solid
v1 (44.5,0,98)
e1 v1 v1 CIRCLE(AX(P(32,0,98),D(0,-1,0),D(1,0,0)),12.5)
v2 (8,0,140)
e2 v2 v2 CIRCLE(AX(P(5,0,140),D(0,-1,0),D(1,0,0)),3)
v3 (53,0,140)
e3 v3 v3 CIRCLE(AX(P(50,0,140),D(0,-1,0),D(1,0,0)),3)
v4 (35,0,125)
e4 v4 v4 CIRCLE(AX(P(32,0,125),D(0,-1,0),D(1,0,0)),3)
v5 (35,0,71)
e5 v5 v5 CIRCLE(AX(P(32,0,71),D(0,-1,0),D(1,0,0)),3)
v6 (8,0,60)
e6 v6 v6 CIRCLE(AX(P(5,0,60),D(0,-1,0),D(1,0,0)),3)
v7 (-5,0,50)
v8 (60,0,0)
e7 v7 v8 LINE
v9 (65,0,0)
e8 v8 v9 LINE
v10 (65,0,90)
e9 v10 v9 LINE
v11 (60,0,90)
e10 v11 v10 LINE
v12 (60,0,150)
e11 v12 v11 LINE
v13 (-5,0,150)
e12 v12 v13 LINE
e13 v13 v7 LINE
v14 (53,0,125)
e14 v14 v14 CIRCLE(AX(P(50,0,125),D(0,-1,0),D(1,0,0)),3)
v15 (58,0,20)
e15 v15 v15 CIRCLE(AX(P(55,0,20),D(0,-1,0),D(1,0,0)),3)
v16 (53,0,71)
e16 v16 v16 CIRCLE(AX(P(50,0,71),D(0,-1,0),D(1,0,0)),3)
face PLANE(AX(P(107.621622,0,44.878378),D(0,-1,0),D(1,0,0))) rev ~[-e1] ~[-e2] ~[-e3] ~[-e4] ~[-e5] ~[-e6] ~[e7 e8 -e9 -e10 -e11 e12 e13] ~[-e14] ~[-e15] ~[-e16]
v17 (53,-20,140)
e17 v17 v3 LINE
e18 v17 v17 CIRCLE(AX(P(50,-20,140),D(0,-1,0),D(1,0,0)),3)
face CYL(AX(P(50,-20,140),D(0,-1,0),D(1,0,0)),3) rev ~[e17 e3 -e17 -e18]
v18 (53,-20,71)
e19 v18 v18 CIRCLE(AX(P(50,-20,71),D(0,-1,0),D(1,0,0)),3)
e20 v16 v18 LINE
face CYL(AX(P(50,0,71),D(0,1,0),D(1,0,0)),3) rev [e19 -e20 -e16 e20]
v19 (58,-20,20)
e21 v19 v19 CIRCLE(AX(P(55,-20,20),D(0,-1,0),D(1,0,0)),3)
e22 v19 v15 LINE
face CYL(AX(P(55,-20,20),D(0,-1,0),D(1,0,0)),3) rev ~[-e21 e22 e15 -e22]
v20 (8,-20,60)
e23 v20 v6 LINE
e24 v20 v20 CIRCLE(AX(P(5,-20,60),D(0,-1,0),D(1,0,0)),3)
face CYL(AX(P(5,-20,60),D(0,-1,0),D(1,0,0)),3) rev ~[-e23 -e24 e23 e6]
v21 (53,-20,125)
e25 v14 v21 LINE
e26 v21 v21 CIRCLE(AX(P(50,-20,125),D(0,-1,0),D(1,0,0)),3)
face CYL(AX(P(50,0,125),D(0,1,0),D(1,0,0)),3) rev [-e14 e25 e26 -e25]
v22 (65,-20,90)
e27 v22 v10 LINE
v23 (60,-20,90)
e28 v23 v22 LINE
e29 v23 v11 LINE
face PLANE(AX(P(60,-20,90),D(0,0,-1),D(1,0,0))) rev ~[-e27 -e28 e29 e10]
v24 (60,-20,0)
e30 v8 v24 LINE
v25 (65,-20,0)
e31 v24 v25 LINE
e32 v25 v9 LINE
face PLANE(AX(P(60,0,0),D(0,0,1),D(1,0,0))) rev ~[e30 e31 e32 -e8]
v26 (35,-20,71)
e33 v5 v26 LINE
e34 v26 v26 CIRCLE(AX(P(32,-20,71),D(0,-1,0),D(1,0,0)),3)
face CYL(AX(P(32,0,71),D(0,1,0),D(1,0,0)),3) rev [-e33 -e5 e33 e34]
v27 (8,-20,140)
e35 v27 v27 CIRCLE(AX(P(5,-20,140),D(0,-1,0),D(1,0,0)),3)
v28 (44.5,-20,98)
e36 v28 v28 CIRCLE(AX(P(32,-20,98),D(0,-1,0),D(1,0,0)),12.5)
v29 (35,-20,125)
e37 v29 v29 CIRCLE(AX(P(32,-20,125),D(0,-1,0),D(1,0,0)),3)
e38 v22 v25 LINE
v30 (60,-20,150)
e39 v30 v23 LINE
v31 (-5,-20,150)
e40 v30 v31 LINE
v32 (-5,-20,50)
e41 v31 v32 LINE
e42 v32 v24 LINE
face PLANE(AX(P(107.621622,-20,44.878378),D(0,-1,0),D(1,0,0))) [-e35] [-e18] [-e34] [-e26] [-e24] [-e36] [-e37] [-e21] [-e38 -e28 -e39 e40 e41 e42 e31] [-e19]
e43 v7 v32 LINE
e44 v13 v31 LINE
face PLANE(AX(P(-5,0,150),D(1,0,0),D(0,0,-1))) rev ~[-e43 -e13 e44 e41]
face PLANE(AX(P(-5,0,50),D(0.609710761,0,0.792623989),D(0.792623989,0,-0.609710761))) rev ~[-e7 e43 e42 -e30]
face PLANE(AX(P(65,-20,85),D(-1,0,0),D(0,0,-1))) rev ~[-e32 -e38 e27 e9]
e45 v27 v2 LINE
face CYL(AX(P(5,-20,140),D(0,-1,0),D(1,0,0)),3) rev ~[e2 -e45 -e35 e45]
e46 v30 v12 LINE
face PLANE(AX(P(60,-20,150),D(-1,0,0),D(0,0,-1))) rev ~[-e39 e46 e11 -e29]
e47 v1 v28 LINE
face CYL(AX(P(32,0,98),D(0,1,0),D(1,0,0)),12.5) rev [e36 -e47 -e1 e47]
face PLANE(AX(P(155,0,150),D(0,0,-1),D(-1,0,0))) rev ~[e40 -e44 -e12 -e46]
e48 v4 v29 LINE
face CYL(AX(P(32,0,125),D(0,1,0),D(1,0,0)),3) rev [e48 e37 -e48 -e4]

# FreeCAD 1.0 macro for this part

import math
import FreeCAD as App
import Part
import Sketcher

V = App.Vector
Q = App.Units.Quantity


def add_polygon(sketch, points):
    """Adds a closed chain of lines whose ends are joined by coincident constraints."""
    first, n = sketch.GeometryCount, len(points)
    for a, b in zip(points, points[1:] + points[:1]):
        sketch.addGeometry(Part.LineSegment(App.Vector(*a, 0), App.Vector(*b, 0)), False)
    for i in range(n):
        sketch.addConstraint(Sketcher.Constraint("Coincident", first + i, 2, first + (i + 1) % n, 1))

doc = App.newDocument("Part")
params = doc.addObject("Spreadsheet::Sheet", "Params")
for row, (alias, value) in enumerate([
    ("sketch1_diameter", "6 mm"),
    ("sketch1_diameter2", "25 mm"),
    ("sketch1_width", "95 mm"),
    ("sketch1_width2", "160 mm"),
    ("sketch1_height", "150 mm"),
    ("pad1_length", "20 mm"),
    ("sketch2_diameter", "25 mm"),
    ("pocket1_length", "25 mm"),
    ("sketch3_radius", "5 mm"),
    ("sketch3_width", "90 mm"),
    ("pocket2_length", "25 mm"),
    ("sketch4_width", "22 mm"),
    ("sketch4_height", "19 mm"),
    ("pocket3_length", "25 mm"),
    ("sketch5_radius", "5 mm"),
    ("sketch5_width", "95 mm"),
    ("sketch5_width2", "6 mm"),
    ("sketch5_width3", "22 mm"),
    ("sketch5_height", "60 mm"),
    ("pocket4_length", "25 mm"),
    ("sketch6_diameter", "6 mm"),
    ("pocket5_length", "25 mm"),
], start=1):
    params.set(f"A{row}", alias)
    params.set(f"B{row}", "=" + value)
    params.setAlias(f"B{row}", alias)

body = doc.addObject("PartDesign::Body", "Body")

# Sketch on XZ plane
sketch1 = body.newObject("Sketcher::SketchObject", "Sketch")
sketch1.AttachmentSupport = (doc.getObject("XZ_Plane"), [""])
sketch1.MapMode = "FlatFace"
add_polygon(sketch1, [(60, 0), (155, 0), (155, 150), (-5, 150), (-5, 50)])  # lines 0-4
sketch1.addGeometry(Part.Circle(V(32, 71, 0), V(0, 0, 1), 3), False)  # 5
sketch1.addGeometry(Part.Circle(V(50, 71, 0), V(0, 0, 1), 3), False)  # 6
sketch1.addGeometry(Part.Circle(V(32, 98, 0), V(0, 0, 1), 12.5), False)  # 7
sketch1.addGeometry(Part.Circle(V(32, 125, 0), V(0, 0, 1), 3), False)  # 8
sketch1.addGeometry(Part.Circle(V(50, 125, 0), V(0, 0, 1), 3), False)  # 9
sketch1.addConstraint([
    Sketcher.Constraint("Horizontal", 0),
    Sketcher.Constraint("Vertical", 1),
    Sketcher.Constraint("Horizontal", 2),
    Sketcher.Constraint("Vertical", 3),
    Sketcher.Constraint("Equal", 5, 6),
    Sketcher.Constraint("Equal", 6, 8),
    Sketcher.Constraint("Equal", 8, 9),
    Sketcher.Constraint("PointOnObject", 0, 2, -1),
    Sketcher.Constraint("Horizontal", 5, 3, 6, 3),
    Sketcher.Constraint("Horizontal", 8, 3, 9, 3),
    Sketcher.Constraint("Vertical", 5, 3, 7, 3),
    Sketcher.Constraint("Vertical", 7, 3, 8, 3),
    Sketcher.Constraint("Vertical", 6, 3, 9, 3),
    Sketcher.Constraint("Diameter", 5, Q("6 mm")),
    Sketcher.Constraint("Diameter", 7, Q("25 mm")),
    Sketcher.Constraint("DistanceX", 0, 1, 0, 2, Q("95 mm")),
    Sketcher.Constraint("DistanceX", 2, 2, 2, 1, Q("160 mm")),
    Sketcher.Constraint("DistanceY", 1, 1, 1, 2, Q("150 mm")),
    Sketcher.Constraint("DistanceY", 3, 2, 3, 1, Q("100 mm")),
    Sketcher.Constraint("DistanceX", -1, 1, 5, 3, Q("32 mm")),
    Sketcher.Constraint("DistanceY", -1, 1, 5, 3, Q("71 mm")),
    Sketcher.Constraint("DistanceX", -1, 1, 6, 3, Q("50 mm")),
    Sketcher.Constraint("DistanceY", -1, 1, 7, 3, Q("98 mm")),
    Sketcher.Constraint("DistanceY", -1, 1, 8, 3, Q("125 mm")),
    Sketcher.Constraint("DistanceX", -1, 1, 0, 2, Q("155 mm")),
])
sketch1.setExpression("Constraints[18]", "Params.sketch1_diameter")
sketch1.setExpression("Constraints[19]", "Params.sketch1_diameter2")
sketch1.setExpression("Constraints[20]", "Params.sketch1_width")
sketch1.setExpression("Constraints[21]", "Params.sketch1_width2")
sketch1.setExpression("Constraints[22]", "Params.sketch1_height")
pad1 = body.newObject("PartDesign::Pad", "Pad")
pad1.Profile = sketch1
pad1.setExpression("Length", "Params.pad1_length")

# Sketch on XZ plane
sketch2 = body.newObject("Sketcher::SketchObject", "Sketch001")
sketch2.AttachmentSupport = (doc.getObject("XZ_Plane"), [""])
sketch2.MapMode = "FlatFace"
sketch2.addGeometry(Part.Circle(V(32, 98, 0), V(0, 0, 1), 12.5), False)
sketch2.addConstraint([
    Sketcher.Constraint("Diameter", 0, Q("25 mm")),
    Sketcher.Constraint("DistanceX", -1, 1, 0, 3, Q("32 mm")),
    Sketcher.Constraint("DistanceY", -1, 1, 0, 3, Q("98 mm")),
])
sketch2.setExpression("Constraints[0]", "Params.sketch2_diameter")
pocket1 = body.newObject("PartDesign::Pocket", "Pocket")
pocket1.Profile = sketch2
pocket1.setExpression("Length", "Params.pocket1_length")
pocket1.Reversed = True

# Sketch on XZ plane
sketch3 = body.newObject("Sketcher::SketchObject", "Sketch002")
sketch3.AttachmentSupport = (doc.getObject("XZ_Plane"), [""])
sketch3.MapMode = "FlatFace"
sketch3.AttachmentOffset = App.Placement(V(0, 0, 20), App.Rotation())
sketch3.addGeometry([
    Part.LineSegment(V(65, 0, 0), V(155, 0, 0)),  # 0
    Part.LineSegment(V(155, 0, 0), V(155, 90, 0)),  # 1
    Part.LineSegment(V(155, 90, 0), V(70, 90, 0)),  # 2
    Part.ArcOfCircle(Part.Circle(V(70, 85, 0), V(0, 0, 1), 5), math.radians(89.999996), math.radians(180.000004)),  # 3
    Part.LineSegment(V(65, 85, 0), V(65, 0, 0)),  # 4
], False)
sketch3.addConstraint([
    Sketcher.Constraint("Coincident", 0, 2, 1, 1),
    Sketcher.Constraint("Coincident", 1, 2, 2, 1),
    Sketcher.Constraint("Tangent", 2, 2, 3, 1),
    Sketcher.Constraint("Tangent", 3, 2, 4, 1),
    Sketcher.Constraint("Coincident", 4, 2, 0, 1),
    Sketcher.Constraint("Horizontal", 0),
    Sketcher.Constraint("Vertical", 1),
    Sketcher.Constraint("Horizontal", 2),
    Sketcher.Constraint("Vertical", 4),
    Sketcher.Constraint("PointOnObject", 0, 2, -1),
    Sketcher.Constraint("Equal", 0, 1),
    Sketcher.Constraint("Radius", 3, Q("5 mm")),
    Sketcher.Constraint("DistanceX", 0, 1, 0, 2, Q("90 mm")),
    Sketcher.Constraint("DistanceX", -1, 1, 3, 3, Q("70 mm")),
])
sketch3.setExpression("Constraints[11]", "Params.sketch3_radius")
sketch3.setExpression("Constraints[12]", "Params.sketch3_width")
pocket2 = body.newObject("PartDesign::Pocket", "Pocket001")
pocket2.Profile = sketch3
pocket2.setExpression("Length", "Params.pocket2_length")

# Sketch on XZ plane
sketch4 = body.newObject("Sketcher::SketchObject", "Sketch003")
sketch4.AttachmentSupport = (doc.getObject("XZ_Plane"), [""])
sketch4.MapMode = "FlatFace"
add_polygon(sketch4, [(98, 109), (98, 90), (76, 90), (76, 109)])  # lines 0-3
sketch4.addConstraint([
    Sketcher.Constraint("Vertical", 0),
    Sketcher.Constraint("Horizontal", 1),
    Sketcher.Constraint("Vertical", 2),
    Sketcher.Constraint("Horizontal", 3),
    Sketcher.Constraint("DistanceX", 1, 2, 1, 1, Q("22 mm")),
    Sketcher.Constraint("DistanceY", 0, 2, 0, 1, Q("19 mm")),
    Sketcher.Constraint("DistanceX", -1, 1, 0, 2, Q("98 mm")),
    Sketcher.Constraint("DistanceY", -1, 1, 0, 2, Q("90 mm")),
])
sketch4.setExpression("Constraints[8]", "Params.sketch4_width")
sketch4.setExpression("Constraints[9]", "Params.sketch4_height")
pocket3 = body.newObject("PartDesign::Pocket", "Pocket002")
pocket3.Profile = sketch4
pocket3.setExpression("Length", "Params.pocket3_length")
pocket3.Reversed = True

# Sketch on XZ plane
sketch5 = body.newObject("Sketcher::SketchObject", "Sketch004")
sketch5.AttachmentSupport = (doc.getObject("XZ_Plane"), [""])
sketch5.MapMode = "FlatFace"
sketch5.AttachmentOffset = App.Placement(V(0, 0, 20), App.Rotation())
sketch5.addGeometry([
    Part.LineSegment(V(155, 150, 0), V(60, 150, 0)),  # 0
    Part.LineSegment(V(60, 150, 0), V(60, 90, 0)),  # 1
    Part.LineSegment(V(60, 90, 0), V(65, 90, 0)),  # 2
    Part.LineSegment(V(65, 90, 0), V(65, 85, 0)),  # 3
    Part.ArcOfCircle(Part.Circle(V(70, 85, 0), V(0, 0, 1), 5), math.radians(89.999996), math.radians(180.000004)),  # 4
    Part.LineSegment(V(70, 90, 0), V(76, 90, 0)),  # 5
    Part.LineSegment(V(76, 90, 0), V(76, 109, 0)),  # 6
    Part.LineSegment(V(76, 109, 0), V(98, 109, 0)),  # 7
    Part.LineSegment(V(98, 109, 0), V(98, 90, 0)),  # 8
    Part.LineSegment(V(98, 90, 0), V(155, 90, 0)),  # 9
    Part.LineSegment(V(155, 90, 0), V(155, 150, 0)),  # 10
], False)
sketch5.addConstraint([
    Sketcher.Constraint("Coincident", 0, 2, 1, 1),
    Sketcher.Constraint("Coincident", 1, 2, 2, 1),
    Sketcher.Constraint("Coincident", 2, 2, 3, 1),
    Sketcher.Constraint("Tangent", 3, 2, 4, 2),
    Sketcher.Constraint("Tangent", 4, 1, 5, 1),
    Sketcher.Constraint("Coincident", 5, 2, 6, 1),
    Sketcher.Constraint("Coincident", 6, 2, 7, 1),
    Sketcher.Constraint("Coincident", 7, 2, 8, 1),
    Sketcher.Constraint("Coincident", 8, 2, 9, 1),
    Sketcher.Constraint("Coincident", 9, 2, 10, 1),
    Sketcher.Constraint("Coincident", 10, 2, 0, 1),
    Sketcher.Constraint("Horizontal", 0),
    Sketcher.Constraint("Vertical", 1),
    Sketcher.Constraint("Horizontal", 2),
    Sketcher.Constraint("Vertical", 3),
    Sketcher.Constraint("Horizontal", 5),
    Sketcher.Constraint("Vertical", 6),
    Sketcher.Constraint("Horizontal", 7),
    Sketcher.Constraint("Vertical", 8),
    Sketcher.Constraint("Horizontal", 9),
    Sketcher.Constraint("Vertical", 10),
    Sketcher.Constraint("Horizontal", 2, 2, 4, 1),
    Sketcher.Constraint("Horizontal", 5, 2, 8, 2),
    Sketcher.Constraint("Equal", 2, 3),
    Sketcher.Constraint("Radius", 4, Q("5 mm")),
    Sketcher.Constraint("DistanceX", 0, 2, 0, 1, Q("95 mm")),
    Sketcher.Constraint("DistanceX", 5, 1, 5, 2, Q("6 mm")),
    Sketcher.Constraint("DistanceX", 7, 1, 7, 2, Q("22 mm")),
    Sketcher.Constraint("DistanceY", 1, 2, 1, 1, Q("60 mm")),
    Sketcher.Constraint("DistanceY", 6, 1, 6, 2, Q("19 mm")),
    Sketcher.Constraint("DistanceX", -1, 1, 4, 3, Q("70 mm")),
    Sketcher.Constraint("DistanceY", -1, 1, 4, 3, Q("85 mm")),
])
sketch5.setExpression("Constraints[24]", "Params.sketch5_radius")
sketch5.setExpression("Constraints[25]", "Params.sketch5_width")
sketch5.setExpression("Constraints[26]", "Params.sketch5_width2")
sketch5.setExpression("Constraints[27]", "Params.sketch5_width3")
sketch5.setExpression("Constraints[28]", "Params.sketch5_height")
pocket4 = body.newObject("PartDesign::Pocket", "Pocket003")
pocket4.Profile = sketch5
pocket4.setExpression("Length", "Params.pocket4_length")

# Sketch on XZ plane
sketch6 = body.newObject("Sketcher::SketchObject", "Sketch005")
sketch6.AttachmentSupport = (doc.getObject("XZ_Plane"), [""])
sketch6.MapMode = "FlatFace"
sketch6.AttachmentOffset = App.Placement(V(0, 0, 20), App.Rotation())
sketch6.addGeometry([
    Part.Circle(V(5, 140, 0), V(0, 0, 1), 3),
    Part.Circle(V(50, 140, 0), V(0, 0, 1), 3),
    Part.Circle(V(5, 60, 0), V(0, 0, 1), 3),
    Part.Circle(V(55, 20, 0), V(0, 0, 1), 3),
], False)
sketch6.addConstraint([
    Sketcher.Constraint("Equal", 0, 1),
    Sketcher.Constraint("Equal", 1, 2),
    Sketcher.Constraint("Equal", 2, 3),
    Sketcher.Constraint("Horizontal", 0, 3, 1, 3),
    Sketcher.Constraint("Vertical", 0, 3, 2, 3),
    Sketcher.Constraint("Diameter", 0, Q("6 mm")),
    Sketcher.Constraint("DistanceX", -1, 1, 0, 3, Q("5 mm")),
    Sketcher.Constraint("DistanceY", -1, 1, 0, 3, Q("140 mm")),
    Sketcher.Constraint("DistanceX", -1, 1, 1, 3, Q("50 mm")),
    Sketcher.Constraint("DistanceY", -1, 1, 2, 3, Q("60 mm")),
    Sketcher.Constraint("DistanceX", -1, 1, 3, 3, Q("55 mm")),
    Sketcher.Constraint("DistanceY", -1, 1, 3, 3, Q("20 mm")),
])
sketch6.setExpression("Constraints[5]", "Params.sketch6_diameter")
pocket5 = body.newObject("PartDesign::Pocket", "Pocket004")
pocket5.Profile = sketch6
pocket5.setExpression("Length", "Params.pocket5_length")

doc.recompute()
